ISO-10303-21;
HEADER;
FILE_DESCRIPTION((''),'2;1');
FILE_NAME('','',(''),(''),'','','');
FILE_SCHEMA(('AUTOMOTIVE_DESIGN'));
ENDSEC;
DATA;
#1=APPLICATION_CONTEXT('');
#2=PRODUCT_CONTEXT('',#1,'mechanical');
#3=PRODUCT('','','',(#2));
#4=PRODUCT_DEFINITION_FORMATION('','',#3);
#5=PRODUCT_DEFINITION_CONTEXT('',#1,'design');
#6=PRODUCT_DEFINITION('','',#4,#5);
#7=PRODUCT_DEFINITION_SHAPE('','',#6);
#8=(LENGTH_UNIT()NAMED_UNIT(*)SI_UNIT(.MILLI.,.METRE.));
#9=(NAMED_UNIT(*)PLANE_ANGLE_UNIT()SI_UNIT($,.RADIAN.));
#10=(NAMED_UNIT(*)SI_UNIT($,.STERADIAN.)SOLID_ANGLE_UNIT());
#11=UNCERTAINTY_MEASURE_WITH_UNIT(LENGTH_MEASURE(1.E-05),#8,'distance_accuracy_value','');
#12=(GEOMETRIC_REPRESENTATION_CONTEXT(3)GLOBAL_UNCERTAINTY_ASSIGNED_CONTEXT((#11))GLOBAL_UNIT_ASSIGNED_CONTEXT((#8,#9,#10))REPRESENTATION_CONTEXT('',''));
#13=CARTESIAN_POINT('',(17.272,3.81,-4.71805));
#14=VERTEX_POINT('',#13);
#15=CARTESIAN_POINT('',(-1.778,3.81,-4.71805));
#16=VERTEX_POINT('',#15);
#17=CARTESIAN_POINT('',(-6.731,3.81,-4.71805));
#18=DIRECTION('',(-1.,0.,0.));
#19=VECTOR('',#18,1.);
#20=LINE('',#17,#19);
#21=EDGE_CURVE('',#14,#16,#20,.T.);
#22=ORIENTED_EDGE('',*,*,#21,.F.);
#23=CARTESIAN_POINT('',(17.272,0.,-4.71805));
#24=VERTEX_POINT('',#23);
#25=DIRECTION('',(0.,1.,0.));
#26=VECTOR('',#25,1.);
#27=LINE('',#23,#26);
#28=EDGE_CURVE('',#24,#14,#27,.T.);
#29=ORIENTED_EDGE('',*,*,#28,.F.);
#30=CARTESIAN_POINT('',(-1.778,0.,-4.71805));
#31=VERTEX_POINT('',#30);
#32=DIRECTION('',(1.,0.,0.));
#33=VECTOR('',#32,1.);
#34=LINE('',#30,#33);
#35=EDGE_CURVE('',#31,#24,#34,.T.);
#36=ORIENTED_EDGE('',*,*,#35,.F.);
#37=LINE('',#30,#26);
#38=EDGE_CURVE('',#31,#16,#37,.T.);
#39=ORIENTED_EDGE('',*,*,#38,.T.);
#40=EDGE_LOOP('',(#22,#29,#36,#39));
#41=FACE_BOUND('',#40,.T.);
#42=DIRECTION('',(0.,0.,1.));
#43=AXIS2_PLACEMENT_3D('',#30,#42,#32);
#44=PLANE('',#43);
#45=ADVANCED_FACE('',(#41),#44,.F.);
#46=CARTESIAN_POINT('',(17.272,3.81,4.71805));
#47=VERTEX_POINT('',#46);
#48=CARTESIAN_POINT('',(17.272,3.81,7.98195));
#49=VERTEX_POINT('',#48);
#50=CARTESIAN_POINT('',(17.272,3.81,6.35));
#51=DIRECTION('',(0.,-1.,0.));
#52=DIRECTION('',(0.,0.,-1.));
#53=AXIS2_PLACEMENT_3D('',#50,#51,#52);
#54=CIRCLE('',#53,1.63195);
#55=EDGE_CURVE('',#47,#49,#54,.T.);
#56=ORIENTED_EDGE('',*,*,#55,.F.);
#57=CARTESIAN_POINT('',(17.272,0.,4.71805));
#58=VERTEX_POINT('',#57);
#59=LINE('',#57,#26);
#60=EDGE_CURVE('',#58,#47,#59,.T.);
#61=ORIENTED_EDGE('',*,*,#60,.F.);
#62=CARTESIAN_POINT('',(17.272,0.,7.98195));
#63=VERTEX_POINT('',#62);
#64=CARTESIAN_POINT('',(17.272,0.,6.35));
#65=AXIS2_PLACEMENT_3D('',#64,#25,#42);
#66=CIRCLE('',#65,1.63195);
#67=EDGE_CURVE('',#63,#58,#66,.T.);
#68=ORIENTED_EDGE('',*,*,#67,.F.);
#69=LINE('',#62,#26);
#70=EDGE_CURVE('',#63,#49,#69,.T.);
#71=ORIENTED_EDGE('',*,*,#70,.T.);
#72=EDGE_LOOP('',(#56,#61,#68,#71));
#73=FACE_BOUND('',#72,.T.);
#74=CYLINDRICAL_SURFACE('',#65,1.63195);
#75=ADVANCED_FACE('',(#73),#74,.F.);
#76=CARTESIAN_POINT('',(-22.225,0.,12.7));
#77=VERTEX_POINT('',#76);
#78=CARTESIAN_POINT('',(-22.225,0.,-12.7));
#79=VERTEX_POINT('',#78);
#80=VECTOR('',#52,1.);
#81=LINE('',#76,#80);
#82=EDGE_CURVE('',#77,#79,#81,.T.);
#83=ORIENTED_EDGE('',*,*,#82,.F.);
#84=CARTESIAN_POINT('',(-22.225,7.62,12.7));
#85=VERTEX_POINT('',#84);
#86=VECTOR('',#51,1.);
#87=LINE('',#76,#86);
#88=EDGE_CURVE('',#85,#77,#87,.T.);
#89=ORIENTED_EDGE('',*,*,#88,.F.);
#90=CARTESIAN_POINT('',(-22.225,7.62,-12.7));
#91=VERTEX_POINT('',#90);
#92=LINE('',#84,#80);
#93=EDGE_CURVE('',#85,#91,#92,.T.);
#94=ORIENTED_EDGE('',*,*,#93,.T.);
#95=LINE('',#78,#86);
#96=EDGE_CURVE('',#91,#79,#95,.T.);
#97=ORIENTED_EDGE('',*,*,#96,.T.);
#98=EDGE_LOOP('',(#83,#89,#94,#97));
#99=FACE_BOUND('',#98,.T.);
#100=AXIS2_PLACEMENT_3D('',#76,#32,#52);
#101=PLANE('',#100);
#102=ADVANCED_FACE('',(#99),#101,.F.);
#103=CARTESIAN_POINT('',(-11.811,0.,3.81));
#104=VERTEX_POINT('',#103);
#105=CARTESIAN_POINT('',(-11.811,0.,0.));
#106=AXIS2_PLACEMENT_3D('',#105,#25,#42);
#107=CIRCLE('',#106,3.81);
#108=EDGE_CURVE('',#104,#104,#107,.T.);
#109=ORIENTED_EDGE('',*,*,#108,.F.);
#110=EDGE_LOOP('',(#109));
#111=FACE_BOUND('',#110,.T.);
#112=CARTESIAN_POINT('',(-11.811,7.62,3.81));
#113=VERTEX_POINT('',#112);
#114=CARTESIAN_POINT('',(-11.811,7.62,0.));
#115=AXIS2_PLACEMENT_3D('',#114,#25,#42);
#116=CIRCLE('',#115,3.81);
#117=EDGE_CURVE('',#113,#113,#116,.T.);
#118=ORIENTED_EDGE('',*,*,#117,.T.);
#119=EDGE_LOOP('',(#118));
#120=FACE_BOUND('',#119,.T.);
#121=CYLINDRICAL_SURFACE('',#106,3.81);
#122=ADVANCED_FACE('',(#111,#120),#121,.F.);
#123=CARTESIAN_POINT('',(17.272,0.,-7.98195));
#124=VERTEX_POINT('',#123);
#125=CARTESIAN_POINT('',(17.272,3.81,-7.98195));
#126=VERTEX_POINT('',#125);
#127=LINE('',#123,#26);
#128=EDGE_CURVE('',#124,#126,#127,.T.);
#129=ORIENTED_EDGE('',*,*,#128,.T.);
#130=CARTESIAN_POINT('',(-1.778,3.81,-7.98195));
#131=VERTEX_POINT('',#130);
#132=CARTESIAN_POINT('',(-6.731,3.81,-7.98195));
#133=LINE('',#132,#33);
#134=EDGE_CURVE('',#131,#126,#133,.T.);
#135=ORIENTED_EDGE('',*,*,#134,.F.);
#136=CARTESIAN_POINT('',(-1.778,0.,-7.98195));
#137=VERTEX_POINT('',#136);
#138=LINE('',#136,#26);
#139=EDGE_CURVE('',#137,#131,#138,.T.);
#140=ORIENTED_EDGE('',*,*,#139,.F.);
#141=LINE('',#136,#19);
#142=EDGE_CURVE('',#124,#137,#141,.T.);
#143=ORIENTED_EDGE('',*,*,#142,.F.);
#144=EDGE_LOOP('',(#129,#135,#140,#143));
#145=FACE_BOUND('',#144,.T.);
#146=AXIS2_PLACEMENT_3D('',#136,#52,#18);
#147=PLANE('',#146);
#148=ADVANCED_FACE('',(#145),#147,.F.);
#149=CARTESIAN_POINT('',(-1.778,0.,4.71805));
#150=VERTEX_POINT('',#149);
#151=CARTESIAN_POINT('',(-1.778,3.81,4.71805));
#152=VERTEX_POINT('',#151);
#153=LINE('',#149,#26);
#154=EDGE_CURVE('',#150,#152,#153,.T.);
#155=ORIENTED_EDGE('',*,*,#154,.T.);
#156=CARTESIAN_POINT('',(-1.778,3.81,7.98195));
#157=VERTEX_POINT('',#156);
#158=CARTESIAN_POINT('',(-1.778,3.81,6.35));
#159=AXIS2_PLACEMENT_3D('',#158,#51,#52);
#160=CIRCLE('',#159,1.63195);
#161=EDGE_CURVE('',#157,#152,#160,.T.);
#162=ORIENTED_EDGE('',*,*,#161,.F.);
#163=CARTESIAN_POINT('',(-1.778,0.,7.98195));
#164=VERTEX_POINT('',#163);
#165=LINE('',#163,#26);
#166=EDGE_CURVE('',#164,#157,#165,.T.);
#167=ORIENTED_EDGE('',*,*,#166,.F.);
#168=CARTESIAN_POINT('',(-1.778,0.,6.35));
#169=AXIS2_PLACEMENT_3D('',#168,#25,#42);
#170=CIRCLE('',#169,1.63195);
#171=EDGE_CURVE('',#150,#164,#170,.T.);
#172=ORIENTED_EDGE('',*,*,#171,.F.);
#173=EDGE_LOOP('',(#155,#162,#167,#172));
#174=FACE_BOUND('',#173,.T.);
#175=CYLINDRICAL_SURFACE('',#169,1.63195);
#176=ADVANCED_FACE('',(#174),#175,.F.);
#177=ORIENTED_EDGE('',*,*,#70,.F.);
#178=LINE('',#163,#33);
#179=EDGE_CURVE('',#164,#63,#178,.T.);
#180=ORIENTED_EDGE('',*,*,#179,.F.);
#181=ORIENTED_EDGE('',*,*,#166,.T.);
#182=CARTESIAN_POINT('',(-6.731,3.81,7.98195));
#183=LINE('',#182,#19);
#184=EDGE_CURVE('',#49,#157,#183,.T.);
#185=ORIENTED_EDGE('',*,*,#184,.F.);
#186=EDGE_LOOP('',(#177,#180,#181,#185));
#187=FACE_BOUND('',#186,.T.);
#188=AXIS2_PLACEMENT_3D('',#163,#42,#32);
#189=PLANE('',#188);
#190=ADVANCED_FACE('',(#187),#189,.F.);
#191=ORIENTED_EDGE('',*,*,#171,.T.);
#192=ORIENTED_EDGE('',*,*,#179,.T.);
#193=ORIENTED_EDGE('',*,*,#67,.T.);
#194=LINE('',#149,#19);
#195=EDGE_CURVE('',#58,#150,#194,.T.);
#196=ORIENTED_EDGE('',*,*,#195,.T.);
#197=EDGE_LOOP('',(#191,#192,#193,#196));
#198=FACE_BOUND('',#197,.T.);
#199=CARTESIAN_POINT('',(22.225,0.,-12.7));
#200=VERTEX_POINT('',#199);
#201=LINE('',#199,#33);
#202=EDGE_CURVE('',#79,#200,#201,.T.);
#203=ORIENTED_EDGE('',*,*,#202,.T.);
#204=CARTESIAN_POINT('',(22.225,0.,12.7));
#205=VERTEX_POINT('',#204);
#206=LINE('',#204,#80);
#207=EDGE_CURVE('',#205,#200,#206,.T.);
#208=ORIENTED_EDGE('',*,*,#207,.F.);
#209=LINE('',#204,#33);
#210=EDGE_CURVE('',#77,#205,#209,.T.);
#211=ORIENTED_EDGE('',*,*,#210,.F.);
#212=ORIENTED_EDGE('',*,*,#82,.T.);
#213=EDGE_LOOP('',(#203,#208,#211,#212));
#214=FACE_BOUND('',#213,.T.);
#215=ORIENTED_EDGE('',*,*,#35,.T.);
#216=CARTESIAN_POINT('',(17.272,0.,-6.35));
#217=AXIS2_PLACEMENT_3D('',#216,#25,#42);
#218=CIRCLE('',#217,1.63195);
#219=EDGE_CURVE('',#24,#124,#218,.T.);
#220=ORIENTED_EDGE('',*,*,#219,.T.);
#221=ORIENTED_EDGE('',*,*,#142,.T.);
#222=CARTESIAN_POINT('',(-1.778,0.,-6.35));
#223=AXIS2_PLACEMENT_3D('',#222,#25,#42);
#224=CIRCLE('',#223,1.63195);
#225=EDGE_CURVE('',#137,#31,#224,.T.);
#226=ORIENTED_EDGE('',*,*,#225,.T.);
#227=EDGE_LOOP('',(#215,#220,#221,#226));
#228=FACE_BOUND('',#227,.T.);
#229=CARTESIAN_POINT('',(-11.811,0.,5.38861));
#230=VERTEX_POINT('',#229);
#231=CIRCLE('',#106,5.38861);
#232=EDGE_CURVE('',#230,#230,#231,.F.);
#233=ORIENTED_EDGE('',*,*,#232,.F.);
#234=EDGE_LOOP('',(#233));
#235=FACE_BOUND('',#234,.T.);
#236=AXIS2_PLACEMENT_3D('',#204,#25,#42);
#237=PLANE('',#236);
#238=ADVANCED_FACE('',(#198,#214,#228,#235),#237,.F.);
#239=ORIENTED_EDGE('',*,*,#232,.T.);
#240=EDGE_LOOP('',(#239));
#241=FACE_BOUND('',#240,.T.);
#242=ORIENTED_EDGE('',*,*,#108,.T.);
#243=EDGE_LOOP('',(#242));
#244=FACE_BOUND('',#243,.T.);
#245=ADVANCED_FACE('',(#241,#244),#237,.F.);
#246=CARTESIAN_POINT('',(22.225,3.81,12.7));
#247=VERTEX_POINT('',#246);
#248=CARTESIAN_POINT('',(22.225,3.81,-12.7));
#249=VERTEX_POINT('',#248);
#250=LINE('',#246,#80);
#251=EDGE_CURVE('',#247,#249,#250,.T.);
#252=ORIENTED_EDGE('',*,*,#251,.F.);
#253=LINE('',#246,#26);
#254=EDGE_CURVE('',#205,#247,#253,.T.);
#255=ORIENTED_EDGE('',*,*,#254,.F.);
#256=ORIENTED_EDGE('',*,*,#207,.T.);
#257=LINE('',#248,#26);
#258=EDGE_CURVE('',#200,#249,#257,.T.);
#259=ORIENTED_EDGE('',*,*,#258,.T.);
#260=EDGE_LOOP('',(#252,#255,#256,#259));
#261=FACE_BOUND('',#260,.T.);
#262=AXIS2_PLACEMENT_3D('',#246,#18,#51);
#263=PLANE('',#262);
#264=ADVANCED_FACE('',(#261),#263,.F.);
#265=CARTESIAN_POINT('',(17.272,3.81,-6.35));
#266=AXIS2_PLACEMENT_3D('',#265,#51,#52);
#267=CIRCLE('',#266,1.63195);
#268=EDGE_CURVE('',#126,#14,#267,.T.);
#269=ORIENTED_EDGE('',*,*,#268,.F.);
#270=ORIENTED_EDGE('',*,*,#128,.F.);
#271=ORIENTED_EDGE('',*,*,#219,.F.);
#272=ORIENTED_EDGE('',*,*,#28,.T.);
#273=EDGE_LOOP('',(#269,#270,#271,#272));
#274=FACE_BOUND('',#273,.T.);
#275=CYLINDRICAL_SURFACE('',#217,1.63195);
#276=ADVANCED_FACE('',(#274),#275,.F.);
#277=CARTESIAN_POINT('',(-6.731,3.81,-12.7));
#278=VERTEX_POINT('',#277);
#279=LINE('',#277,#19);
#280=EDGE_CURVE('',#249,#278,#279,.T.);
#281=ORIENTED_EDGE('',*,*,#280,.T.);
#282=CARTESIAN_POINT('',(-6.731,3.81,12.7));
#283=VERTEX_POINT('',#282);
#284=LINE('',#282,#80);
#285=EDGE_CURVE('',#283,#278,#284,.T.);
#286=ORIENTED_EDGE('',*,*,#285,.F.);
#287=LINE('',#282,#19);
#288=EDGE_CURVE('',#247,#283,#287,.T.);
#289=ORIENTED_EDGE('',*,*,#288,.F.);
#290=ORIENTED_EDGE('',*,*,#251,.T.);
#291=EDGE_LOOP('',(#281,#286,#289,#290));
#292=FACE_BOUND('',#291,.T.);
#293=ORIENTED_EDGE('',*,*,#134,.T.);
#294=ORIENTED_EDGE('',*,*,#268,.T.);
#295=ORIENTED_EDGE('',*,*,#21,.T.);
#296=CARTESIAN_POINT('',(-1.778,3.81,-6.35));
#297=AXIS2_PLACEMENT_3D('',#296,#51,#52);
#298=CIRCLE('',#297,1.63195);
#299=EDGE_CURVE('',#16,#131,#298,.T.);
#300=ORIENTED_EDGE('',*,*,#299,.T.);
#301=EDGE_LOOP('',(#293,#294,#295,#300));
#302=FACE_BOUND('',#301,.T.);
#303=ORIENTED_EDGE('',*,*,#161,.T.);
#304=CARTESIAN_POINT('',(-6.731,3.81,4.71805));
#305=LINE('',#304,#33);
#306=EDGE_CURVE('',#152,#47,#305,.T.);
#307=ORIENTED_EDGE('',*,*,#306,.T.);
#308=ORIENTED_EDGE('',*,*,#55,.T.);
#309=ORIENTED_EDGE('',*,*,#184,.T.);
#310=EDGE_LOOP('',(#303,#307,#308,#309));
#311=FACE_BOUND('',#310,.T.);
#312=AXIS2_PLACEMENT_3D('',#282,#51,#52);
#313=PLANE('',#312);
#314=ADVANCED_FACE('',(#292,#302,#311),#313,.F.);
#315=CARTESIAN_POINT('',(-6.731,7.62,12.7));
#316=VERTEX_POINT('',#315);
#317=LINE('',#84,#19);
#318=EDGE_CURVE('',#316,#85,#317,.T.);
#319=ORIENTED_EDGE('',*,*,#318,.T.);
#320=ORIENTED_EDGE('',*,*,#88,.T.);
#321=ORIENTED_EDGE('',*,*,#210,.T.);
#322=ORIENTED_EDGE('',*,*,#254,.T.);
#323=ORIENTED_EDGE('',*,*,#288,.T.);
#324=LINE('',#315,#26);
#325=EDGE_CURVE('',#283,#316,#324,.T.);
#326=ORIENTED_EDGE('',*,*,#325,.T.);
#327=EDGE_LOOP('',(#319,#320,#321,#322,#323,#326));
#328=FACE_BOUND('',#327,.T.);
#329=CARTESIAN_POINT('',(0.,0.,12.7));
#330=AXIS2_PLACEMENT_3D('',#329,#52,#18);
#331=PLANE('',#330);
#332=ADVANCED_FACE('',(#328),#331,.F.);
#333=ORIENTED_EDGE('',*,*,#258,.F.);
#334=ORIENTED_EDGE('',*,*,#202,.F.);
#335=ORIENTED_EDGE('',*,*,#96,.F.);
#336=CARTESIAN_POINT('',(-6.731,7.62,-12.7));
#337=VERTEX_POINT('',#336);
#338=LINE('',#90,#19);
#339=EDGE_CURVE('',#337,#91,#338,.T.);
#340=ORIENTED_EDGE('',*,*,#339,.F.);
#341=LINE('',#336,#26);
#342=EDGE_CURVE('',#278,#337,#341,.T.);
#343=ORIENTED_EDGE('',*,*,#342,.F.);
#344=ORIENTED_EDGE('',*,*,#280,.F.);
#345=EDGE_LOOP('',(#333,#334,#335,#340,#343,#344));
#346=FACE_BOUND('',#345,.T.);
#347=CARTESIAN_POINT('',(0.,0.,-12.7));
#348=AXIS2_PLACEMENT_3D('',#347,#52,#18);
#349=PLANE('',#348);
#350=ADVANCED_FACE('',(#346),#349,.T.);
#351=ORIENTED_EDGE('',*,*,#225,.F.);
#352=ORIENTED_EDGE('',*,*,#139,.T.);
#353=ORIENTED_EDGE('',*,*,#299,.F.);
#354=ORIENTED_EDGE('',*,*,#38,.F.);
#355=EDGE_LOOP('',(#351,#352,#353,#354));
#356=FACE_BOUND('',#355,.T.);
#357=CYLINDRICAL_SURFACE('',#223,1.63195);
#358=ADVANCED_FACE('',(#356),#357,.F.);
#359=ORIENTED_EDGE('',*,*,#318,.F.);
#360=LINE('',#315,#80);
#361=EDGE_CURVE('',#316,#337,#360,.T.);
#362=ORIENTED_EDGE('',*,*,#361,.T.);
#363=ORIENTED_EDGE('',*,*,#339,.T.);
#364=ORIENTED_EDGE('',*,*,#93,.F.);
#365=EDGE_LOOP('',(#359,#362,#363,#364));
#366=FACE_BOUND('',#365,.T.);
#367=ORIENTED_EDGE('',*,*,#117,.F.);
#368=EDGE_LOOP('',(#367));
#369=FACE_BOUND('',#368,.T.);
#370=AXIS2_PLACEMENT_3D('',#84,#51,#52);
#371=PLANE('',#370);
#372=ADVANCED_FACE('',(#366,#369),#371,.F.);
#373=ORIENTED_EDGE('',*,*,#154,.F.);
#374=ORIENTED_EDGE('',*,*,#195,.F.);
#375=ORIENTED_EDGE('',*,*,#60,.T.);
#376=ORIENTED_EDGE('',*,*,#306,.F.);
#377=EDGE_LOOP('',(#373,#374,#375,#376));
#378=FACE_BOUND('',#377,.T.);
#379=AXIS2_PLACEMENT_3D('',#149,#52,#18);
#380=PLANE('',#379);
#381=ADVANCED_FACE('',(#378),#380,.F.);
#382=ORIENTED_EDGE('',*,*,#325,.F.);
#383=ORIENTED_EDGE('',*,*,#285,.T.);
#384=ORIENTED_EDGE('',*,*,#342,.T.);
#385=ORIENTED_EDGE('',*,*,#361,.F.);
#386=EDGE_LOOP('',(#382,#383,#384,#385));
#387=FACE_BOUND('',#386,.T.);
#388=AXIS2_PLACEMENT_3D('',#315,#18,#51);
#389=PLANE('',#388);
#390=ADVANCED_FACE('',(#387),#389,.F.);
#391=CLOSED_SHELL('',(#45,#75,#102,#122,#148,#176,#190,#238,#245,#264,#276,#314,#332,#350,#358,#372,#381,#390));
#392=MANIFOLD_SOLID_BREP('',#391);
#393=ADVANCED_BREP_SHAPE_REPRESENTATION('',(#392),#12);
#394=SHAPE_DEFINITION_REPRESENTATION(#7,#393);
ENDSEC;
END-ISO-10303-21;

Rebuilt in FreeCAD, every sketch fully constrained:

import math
import FreeCAD as App
import Part
import Sketcher
from FreeCAD import Vector
Q = App.Units.Quantity


def add_polygon(sketch, points):
    """Adds a closed chain of lines whose ends are joined by coincident constraints."""
    first, n = sketch.GeometryCount, len(points)
    for a, b in zip(points, points[1:] + points[:1]):
        sketch.addGeometry(Part.LineSegment(App.Vector(*a, 0), App.Vector(*b, 0)), False)
    for i in range(n):
        sketch.addConstraint(Sketcher.Constraint("Coincident", first + i, 2, first + (i + 1) % n, 1))

doc = App.newDocument("Part")
body = doc.addObject("PartDesign::Body", "Body")

# Sketch on XY plane
sketch1 = body.newObject("Sketcher::SketchObject", "Sketch")
sketch1.AttachmentSupport = (doc.getObject("XY_Plane"), [""])
sketch1.MapMode = "FlatFace"
add_polygon(sketch1, [(-6.7, 7.6), (-22.2, 7.6), (-22.2, 0), (22.2, 0), (22.2, 3.8), (-6.7, 3.8)])  # lines 0-5
sketch1.addConstraint([
    Sketcher.Constraint("Horizontal", 0),
    Sketcher.Constraint("Vertical", 1),
    Sketcher.Constraint("Horizontal", 2),
    Sketcher.Constraint("Vertical", 3),
    Sketcher.Constraint("Horizontal", 4),
    Sketcher.Constraint("Vertical", 5),
    Sketcher.Constraint("Symmetric", 1, 2, 2, 2, -1, 1),
    Sketcher.Constraint("Equal", 3, 5),
    Sketcher.Constraint("DistanceY", 1, 2, 1, 1, Q("0.3 in")),
    Sketcher.Constraint("DistanceX", 0, 2, 0, 1, Q("0.61 in")),
    Sketcher.Constraint("DistanceX", 2, 1, 2, 2, Q("1.75 in")),
])
pad1 = body.newObject("PartDesign::Pad", "Pad")
pad1.Profile = sketch1
pad1.Length = Q("1 in")
pad1.Midplane = True

# Sketch on XZ plane
sketch2 = body.newObject("Sketcher::SketchObject", "Sketch001")
sketch2.AttachmentSupport = (doc.getObject("XZ_Plane"), [""])
sketch2.MapMode = "FlatFace"
sketch2.AttachmentOffset = App.Placement(Vector(0, 0, -0.3 * 25.4), App.Rotation())
sketch2.addGeometry([
    Part.Circle(Vector(-11.8, 0, 0), Vector(0, 0, 1), 3.8),  # 0
    Part.LineSegment(Vector(17.3, -8, 0), Vector(-1.8, -8, 0)),  # 1
    Part.ArcOfCircle(Part.Circle(Vector(-1.8, -6.3, 0), Vector(0, 0, 1), 1.6), math.radians(90), math.radians(270)),  # 2
    Part.LineSegment(Vector(-1.8, -4.7, 0), Vector(17.3, -4.7, 0)),  # 3
    Part.ArcOfCircle(Part.Circle(Vector(17.3, -6.3, 0), Vector(0, 0, 1), 1.6), math.radians(-90), math.radians(90)),  # 4
    Part.LineSegment(Vector(17.3, 4.7, 0), Vector(-1.8, 4.7, 0)),  # 5
    Part.ArcOfCircle(Part.Circle(Vector(-1.8, 6.3, 0), Vector(0, 0, 1), 1.6), math.radians(90), math.radians(270)),  # 6
    Part.LineSegment(Vector(-1.8, 8, 0), Vector(17.3, 8, 0)),  # 7
    Part.ArcOfCircle(Part.Circle(Vector(17.3, 6.3, 0), Vector(0, 0, 1), 1.6), math.radians(-90), math.radians(90)),  # 8
], False)
sketch2.addConstraint([
    Sketcher.Constraint("Tangent", 1, 2, 2, 2),
    Sketcher.Constraint("Tangent", 2, 1, 3, 1),
    Sketcher.Constraint("Tangent", 3, 2, 4, 2),
    Sketcher.Constraint("Tangent", 4, 1, 1, 1),
    Sketcher.Constraint("Tangent", 5, 2, 6, 2),
    Sketcher.Constraint("Tangent", 6, 1, 7, 1),
    Sketcher.Constraint("Tangent", 7, 2, 8, 2),
    Sketcher.Constraint("Tangent", 8, 1, 5, 1),
    Sketcher.Constraint("Horizontal", 1),
    Sketcher.Constraint("Horizontal", 3),
    Sketcher.Constraint("Horizontal", 5),
    Sketcher.Constraint("Horizontal", 7),
    Sketcher.Constraint("Equal", 4, 6),
    Sketcher.Constraint("Symmetric", 2, 3, 6, 3, -1),
    Sketcher.Constraint("PointOnObject", 0, 3, -1),
    Sketcher.Constraint("Vertical", 4, 3, 8, 3),
    Sketcher.Constraint("Diameter", 0, Q("0.3 in")),
    Sketcher.Constraint("DistanceX", 1, 2, 1, 1, Q("0.75 in")),
    Sketcher.Constraint("DistanceY", 2, 3, 6, 3, Q("0.5 in")),
    Sketcher.Constraint("DistanceX", 2, 3, -1, 1, Q("0.07 in")),
    Sketcher.Constraint("DistanceX", 0, 3, -1, 1, Q("0.465 in")),
    Sketcher.Constraint("Radius", 2, 1.63195),
])
pocket1 = body.newObject("PartDesign::Pocket", "Pocket")
pocket1.Profile = sketch2
pocket1.Type = "ThroughAll"
pocket1.Reversed = True

doc.recompute()
